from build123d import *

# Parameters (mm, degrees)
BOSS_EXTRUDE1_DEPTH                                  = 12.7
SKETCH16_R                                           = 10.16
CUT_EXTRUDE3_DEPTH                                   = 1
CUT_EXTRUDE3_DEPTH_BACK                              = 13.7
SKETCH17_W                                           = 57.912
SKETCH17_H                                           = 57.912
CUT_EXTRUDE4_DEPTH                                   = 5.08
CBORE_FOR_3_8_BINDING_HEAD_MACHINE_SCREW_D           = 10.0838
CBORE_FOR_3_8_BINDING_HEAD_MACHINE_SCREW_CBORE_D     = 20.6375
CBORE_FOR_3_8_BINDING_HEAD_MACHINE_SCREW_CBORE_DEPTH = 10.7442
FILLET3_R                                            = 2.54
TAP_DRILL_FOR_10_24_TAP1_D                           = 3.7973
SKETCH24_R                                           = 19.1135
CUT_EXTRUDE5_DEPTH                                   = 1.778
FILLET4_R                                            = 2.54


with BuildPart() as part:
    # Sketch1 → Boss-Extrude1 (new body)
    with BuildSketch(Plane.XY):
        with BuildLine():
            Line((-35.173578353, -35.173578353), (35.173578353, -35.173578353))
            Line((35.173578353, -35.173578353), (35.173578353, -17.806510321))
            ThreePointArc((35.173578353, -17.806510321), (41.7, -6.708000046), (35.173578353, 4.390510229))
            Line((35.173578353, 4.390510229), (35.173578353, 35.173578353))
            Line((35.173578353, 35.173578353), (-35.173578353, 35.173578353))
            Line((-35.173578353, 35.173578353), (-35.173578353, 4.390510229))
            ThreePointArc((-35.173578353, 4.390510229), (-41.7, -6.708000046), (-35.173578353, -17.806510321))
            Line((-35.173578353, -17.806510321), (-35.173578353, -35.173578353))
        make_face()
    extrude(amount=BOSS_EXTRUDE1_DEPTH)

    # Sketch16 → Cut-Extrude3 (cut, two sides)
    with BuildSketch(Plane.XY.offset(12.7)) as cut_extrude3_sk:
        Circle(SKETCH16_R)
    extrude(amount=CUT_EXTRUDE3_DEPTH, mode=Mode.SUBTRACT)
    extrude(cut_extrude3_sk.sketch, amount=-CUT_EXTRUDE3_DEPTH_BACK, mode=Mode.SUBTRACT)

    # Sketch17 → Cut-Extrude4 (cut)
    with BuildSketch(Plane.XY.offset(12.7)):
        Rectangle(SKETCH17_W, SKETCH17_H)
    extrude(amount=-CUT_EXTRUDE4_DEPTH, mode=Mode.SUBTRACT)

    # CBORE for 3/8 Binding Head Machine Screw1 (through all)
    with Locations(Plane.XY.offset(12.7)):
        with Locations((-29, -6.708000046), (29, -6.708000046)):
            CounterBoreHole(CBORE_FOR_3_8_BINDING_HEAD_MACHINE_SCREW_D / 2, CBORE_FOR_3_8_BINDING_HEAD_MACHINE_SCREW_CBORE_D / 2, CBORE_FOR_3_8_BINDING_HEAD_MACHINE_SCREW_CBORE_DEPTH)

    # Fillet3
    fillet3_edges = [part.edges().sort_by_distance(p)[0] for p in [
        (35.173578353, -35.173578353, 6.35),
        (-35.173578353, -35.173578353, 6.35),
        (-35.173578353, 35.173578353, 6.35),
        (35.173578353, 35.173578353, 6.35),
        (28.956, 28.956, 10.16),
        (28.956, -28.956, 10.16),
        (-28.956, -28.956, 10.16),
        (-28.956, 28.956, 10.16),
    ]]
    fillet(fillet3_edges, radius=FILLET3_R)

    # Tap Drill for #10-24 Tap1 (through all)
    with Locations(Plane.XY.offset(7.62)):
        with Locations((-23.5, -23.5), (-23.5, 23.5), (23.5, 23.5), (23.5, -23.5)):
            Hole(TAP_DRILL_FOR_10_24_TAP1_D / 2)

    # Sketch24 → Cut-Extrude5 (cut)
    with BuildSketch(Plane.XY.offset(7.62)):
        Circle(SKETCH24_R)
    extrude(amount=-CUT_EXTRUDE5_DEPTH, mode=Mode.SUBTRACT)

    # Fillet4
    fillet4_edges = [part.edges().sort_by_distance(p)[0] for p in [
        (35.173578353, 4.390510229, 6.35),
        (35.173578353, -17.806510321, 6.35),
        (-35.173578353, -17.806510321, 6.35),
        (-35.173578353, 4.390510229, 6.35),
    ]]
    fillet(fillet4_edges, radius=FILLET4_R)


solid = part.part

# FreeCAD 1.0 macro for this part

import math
import FreeCAD as App
import Part
import Sketcher

V = App.Vector
Q = App.Units.Quantity


def edges_at(feature, points):
    """Names of the edges that pass closest to the given points."""
    edges = feature.Shape.Edges
    near = lambda p: min(range(len(edges)), key=lambda i: edges[i].distToShape(Part.Vertex(*p))[0])
    return sorted({f"Edge{near(p) + 1}" for p in points})


def add_polygon(sketch, points):
    """Adds a closed chain of lines whose ends are joined by coincident constraints."""
    first, n = sketch.GeometryCount, len(points)
    for a, b in zip(points, points[1:] + points[:1]):
        sketch.addGeometry(Part.LineSegment(App.Vector(*a, 0), App.Vector(*b, 0)), False)
    for i in range(n):
        sketch.addConstraint(Sketcher.Constraint("Coincident", first + i, 2, first + (i + 1) % n, 1))

doc = App.newDocument("Part")
params = doc.addObject("Spreadsheet::Sheet", "Params")
for row, (alias, value) in enumerate([
    ("sketch1_radius", "0.5 in"),
    ("pad1_length", "0.5 in"),
    ("sketch2_diameter", "0.8 in"),
    ("sketch3_width", "2.28 in"),
    ("pocket2_length", "0.2 in"),
    ("sketch4_diameter", "0.397 in"),
    ("hole_diameter", "0.397 in"),
    ("hole_cbore_diameter", "0.8125 in"),
    ("hole_cbore_depth", "0.423 in"),
    ("fillet_radius", "0.1 in"),
    ("hole2_diameter", "0.1495 in"),
    ("sketch6_diameter", "1.505 in"),
    ("pocket3_length", "0.07 in"),
    ("fillet2_radius", "0.1 in"),
], start=1):
    params.set(f"A{row}", alias)
    params.set(f"B{row}", "=" + value)
    params.setAlias(f"B{row}", alias)

body = doc.addObject("PartDesign::Body", "Body")

# Sketch on XY plane
sketch1 = doc.addObject("Sketcher::SketchObject", "Sketch")
body.addObject(sketch1)
sketch1.AttachmentSupport = (doc.XY_Plane, [""])
sketch1.MapMode = "FlatFace"
sketch1.addGeometry(Part.LineSegment(V(-35, -35, 0), V(35, -35, 0)), False)
sketch1.addGeometry(Part.LineSegment(V(35, -35, 0), V(35, -18, 0)), False)
sketch1.addGeometry(Part.ArcOfCircle(Part.Circle(V(29, -7, 0), V(0, 0, 1), 13), math.radians(-61), math.radians(61)), False)
sketch1.addGeometry(Part.LineSegment(V(35, 4, 0), V(35, 35, 0)), False)
sketch1.addGeometry(Part.LineSegment(V(35, 35, 0), V(-35, 35, 0)), False)
sketch1.addGeometry(Part.LineSegment(V(-35, 35, 0), V(-35, 4, 0)), False)
sketch1.addGeometry(Part.ArcOfCircle(Part.Circle(V(-29, -7, 0), V(0, 0, 1), 13), math.radians(119), math.radians(241)), False)
sketch1.addGeometry(Part.LineSegment(V(-35, -18, 0), V(-35, -35, 0)), False)
sketch1.addConstraint(Sketcher.Constraint("Coincident", 0, 2, 1, 1))
sketch1.addConstraint(Sketcher.Constraint("Coincident", 1, 2, 2, 1))
sketch1.addConstraint(Sketcher.Constraint("Coincident", 2, 2, 3, 1))
sketch1.addConstraint(Sketcher.Constraint("Coincident", 3, 2, 4, 1))
sketch1.addConstraint(Sketcher.Constraint("Coincident", 4, 2, 5, 1))
sketch1.addConstraint(Sketcher.Constraint("Coincident", 5, 2, 6, 1))
sketch1.addConstraint(Sketcher.Constraint("Coincident", 6, 2, 7, 1))
sketch1.addConstraint(Sketcher.Constraint("Coincident", 7, 2, 0, 1))
sketch1.addConstraint(Sketcher.Constraint("Horizontal", 0))
sketch1.addConstraint(Sketcher.Constraint("Vertical", 1))
sketch1.addConstraint(Sketcher.Constraint("Vertical", 3))
sketch1.addConstraint(Sketcher.Constraint("Horizontal", 4))
sketch1.addConstraint(Sketcher.Constraint("Vertical", 5))
sketch1.addConstraint(Sketcher.Constraint("Vertical", 7))
sketch1.addConstraint(Sketcher.Constraint("Equal", 2, 6))
sketch1.addConstraint(Sketcher.Constraint("Symmetric", 0, 2, 4, 2, -1, 1))
sketch1.addConstraint(Sketcher.Constraint("Symmetric", 2, 3, 6, 3, -2))
sketch1.addConstraint(Sketcher.Constraint("Horizontal", 2, 2, 5, 2))
sketch1.addConstraint(Sketcher.Constraint("Horizontal", 1, 2, 6, 2))
sketch1.addConstraint(Sketcher.Constraint("Radius", 2, Q("0.5 in")))
sketch1.addConstraint(Sketcher.Constraint("DistanceY", 1, 1, 1, 2, Q("17.367068 mm")))
sketch1.addConstraint(Sketcher.Constraint("DistanceY", 3, 1, 3, 2, Q("30.783068 mm")))
sketch1.addConstraint(Sketcher.Constraint("DistanceX", -1, 1, 2, 3, Q("29 mm")))
sketch1.addConstraint(Sketcher.Constraint("DistanceX", 0, 1, 0, 2, Q("70.347157 mm")))
sketch1.setExpression("Constraints[19]", "Params.sketch1_radius")
pad1 = doc.addObject("PartDesign::Pad", "Pad")
body.addObject(pad1)
pad1.Profile = sketch1
pad1.setExpression("Length", "Params.pad1_length")

# Sketch on XY plane
sketch2 = doc.addObject("Sketcher::SketchObject", "Sketch001")
body.addObject(sketch2)
sketch2.AttachmentSupport = (doc.XY_Plane, [""])
sketch2.MapMode = "FlatFace"
sketch2.AttachmentOffset = App.Placement(V(0, 0, 0.5 * 25.4), App.Rotation())
sketch2.addGeometry(Part.Circle(V(0, 0, 0), V(0, 0, 1), 10), False)
sketch2.addConstraint(Sketcher.Constraint("Coincident", 0, 3, -1, 1))
sketch2.addConstraint(Sketcher.Constraint("Diameter", 0, Q("0.8 in")))
sketch2.setExpression("Constraints[1]", "Params.sketch2_diameter")
pocket1 = doc.addObject("PartDesign::Pocket", "Pocket")
body.addObject(pocket1)
pocket1.Profile = sketch2
pocket1.Type = "ThroughAll"
pocket1.Midplane = True

# Sketch on XY plane
sketch3 = doc.addObject("Sketcher::SketchObject", "Sketch002")
body.addObject(sketch3)
sketch3.AttachmentSupport = (doc.XY_Plane, [""])
sketch3.MapMode = "FlatFace"
sketch3.AttachmentOffset = App.Placement(V(0, 0, 0.5 * 25.4), App.Rotation())
add_polygon(sketch3, [(-29, 29), (-29, -29), (29, -29), (29, 29)])  # lines 0-3
sketch3.addConstraint(Sketcher.Constraint("Vertical", 0))
sketch3.addConstraint(Sketcher.Constraint("Horizontal", 1))
sketch3.addConstraint(Sketcher.Constraint("Vertical", 2))
sketch3.addConstraint(Sketcher.Constraint("Horizontal", 3))
sketch3.addConstraint(Sketcher.Constraint("Symmetric", 0, 2, 2, 2, -1, 1))
sketch3.addConstraint(Sketcher.Constraint("Equal", 3, 0))
sketch3.addConstraint(Sketcher.Constraint("DistanceX", 1, 1, 1, 2, Q("2.28 in")))
sketch3.setExpression("Constraints[10]", "Params.sketch3_width")
pocket2 = doc.addObject("PartDesign::Pocket", "Pocket001")
body.addObject(pocket2)
pocket2.Profile = sketch3
pocket2.setExpression("Length", "Params.pocket2_length")

# Sketch on XY plane
sketch4 = doc.addObject("Sketcher::SketchObject", "Sketch003")
body.addObject(sketch4)
sketch4.AttachmentSupport = (doc.XY_Plane, [""])
sketch4.MapMode = "FlatFace"
sketch4.AttachmentOffset = App.Placement(V(0, 0, 0.5 * 25.4), App.Rotation())
sketch4.addGeometry(Part.Circle(V(-29, -7, 0), V(0, 0, 1), 5), False)
sketch4.addGeometry(Part.Circle(V(29, -7, 0), V(0, 0, 1), 5), False)
sketch4.addConstraint(Sketcher.Constraint("Equal", 0, 1))
sketch4.addConstraint(Sketcher.Constraint("Symmetric", 0, 3, 1, 3, -2))
sketch4.addConstraint(Sketcher.Constraint("Diameter", 0, Q("0.397 in")))
sketch4.addConstraint(Sketcher.Constraint("DistanceX", 0, 3, -1, 1, Q("29 mm")))
sketch4.addConstraint(Sketcher.Constraint("DistanceY", 0, 3, -1, 1, Q("6.708 mm")))
sketch4.setExpression("Constraints[2]", "Params.sketch4_diameter")
doc.recompute()
hole = doc.addObject("PartDesign::Hole", "Hole")
body.addObject(hole)
hole.Profile = sketch4
hole.ThreadType = "None"
hole.setExpression("Diameter", "Params.hole_diameter")
hole.DepthType = "ThroughAll"
hole.HoleCutType = "Counterbore"
hole.setExpression("HoleCutDiameter", "Params.hole_cbore_diameter")
hole.setExpression("HoleCutDepth", "Params.hole_cbore_depth")
doc.recompute()

fillet = doc.addObject("PartDesign::Fillet", "Fillet")
body.addObject(fillet)
fillet.Base = (hole, edges_at(hole, [
    (35.174, -35.174, 6.35),
    (-35.174, -35.174, 6.35),
    (-35.174, 35.174, 6.35),
    (35.174, 35.174, 6.35),
    (28.956, 28.956, 10.16),
    (28.956, -28.956, 10.16),
    (-28.956, -28.956, 10.16),
    (-28.956, 28.956, 10.16),
]))
fillet.setExpression("Radius", "Params.fillet_radius")

# Sketch on XY plane
sketch5 = doc.addObject("Sketcher::SketchObject", "Sketch004")
body.addObject(sketch5)
sketch5.AttachmentSupport = (doc.XY_Plane, [""])
sketch5.MapMode = "FlatFace"
sketch5.AttachmentOffset = App.Placement(V(0, 0, 0.3 * 25.4), App.Rotation())
sketch5.addGeometry(Part.Circle(V(-23.5, -23.5, 0), V(0, 0, 1), 1.9), False)
sketch5.addGeometry(Part.Circle(V(-23.5, 23.5, 0), V(0, 0, 1), 1.9), False)
sketch5.addGeometry(Part.Circle(V(23.5, 23.5, 0), V(0, 0, 1), 1.9), False)
sketch5.addGeometry(Part.Circle(V(23.5, -23.5, 0), V(0, 0, 1), 1.9), False)
sketch5.addConstraint(Sketcher.Constraint("Equal", 0, 1))
sketch5.addConstraint(Sketcher.Constraint("Equal", 1, 2))
sketch5.addConstraint(Sketcher.Constraint("Equal", 2, 3))
sketch5.addConstraint(Sketcher.Constraint("Symmetric", 0, 3, 2, 3, -1, 1))
sketch5.addConstraint(Sketcher.Constraint("Symmetric", 1, 3, 3, 3, -1, 1))
sketch5.addConstraint(Sketcher.Constraint("Symmetric", 1, 3, 2, 3, -2))
sketch5.addConstraint(Sketcher.Constraint("Diameter", 0, Q("0.1495 in")))
sketch5.addConstraint(Sketcher.Constraint("DistanceX", 0, 3, -1, 1, Q("23.5 mm")))
sketch5.addConstraint(Sketcher.Constraint("DistanceY", 0, 3, -1, 1, Q("23.5 mm")))
doc.recompute()
hole2 = doc.addObject("PartDesign::Hole", "Hole001")
body.addObject(hole2)
hole2.Profile = sketch5
hole2.ThreadType = "None"
hole2.setExpression("Diameter", "Params.hole2_diameter")
hole2.DepthType = "ThroughAll"

# Sketch on XY plane
sketch6 = doc.addObject("Sketcher::SketchObject", "Sketch005")
body.addObject(sketch6)
sketch6.AttachmentSupport = (doc.XY_Plane, [""])
sketch6.MapMode = "FlatFace"
sketch6.AttachmentOffset = App.Placement(V(0, 0, 0.3 * 25.4), App.Rotation())
sketch6.addGeometry(Part.Circle(V(0, 0, 0), V(0, 0, 1), 19), False)
sketch6.addConstraint(Sketcher.Constraint("Coincident", 0, 3, -1, 1))
sketch6.addConstraint(Sketcher.Constraint("Diameter", 0, Q("1.505 in")))
sketch6.setExpression("Constraints[1]", "Params.sketch6_diameter")
pocket3 = doc.addObject("PartDesign::Pocket", "Pocket002")
body.addObject(pocket3)
pocket3.Profile = sketch6
pocket3.setExpression("Length", "Params.pocket3_length")
doc.recompute()

fillet2 = doc.addObject("PartDesign::Fillet", "Fillet001")
body.addObject(fillet2)
fillet2.Base = (pocket3, edges_at(pocket3, [
    (35.174, 4.391, 6.35),
    (35.174, -17.807, 6.35),
    (-35.174, -17.807, 6.35),
    (-35.174, 4.391, 6.35),
]))
fillet2.setExpression("Radius", "Params.fillet2_radius")

doc.recompute()
